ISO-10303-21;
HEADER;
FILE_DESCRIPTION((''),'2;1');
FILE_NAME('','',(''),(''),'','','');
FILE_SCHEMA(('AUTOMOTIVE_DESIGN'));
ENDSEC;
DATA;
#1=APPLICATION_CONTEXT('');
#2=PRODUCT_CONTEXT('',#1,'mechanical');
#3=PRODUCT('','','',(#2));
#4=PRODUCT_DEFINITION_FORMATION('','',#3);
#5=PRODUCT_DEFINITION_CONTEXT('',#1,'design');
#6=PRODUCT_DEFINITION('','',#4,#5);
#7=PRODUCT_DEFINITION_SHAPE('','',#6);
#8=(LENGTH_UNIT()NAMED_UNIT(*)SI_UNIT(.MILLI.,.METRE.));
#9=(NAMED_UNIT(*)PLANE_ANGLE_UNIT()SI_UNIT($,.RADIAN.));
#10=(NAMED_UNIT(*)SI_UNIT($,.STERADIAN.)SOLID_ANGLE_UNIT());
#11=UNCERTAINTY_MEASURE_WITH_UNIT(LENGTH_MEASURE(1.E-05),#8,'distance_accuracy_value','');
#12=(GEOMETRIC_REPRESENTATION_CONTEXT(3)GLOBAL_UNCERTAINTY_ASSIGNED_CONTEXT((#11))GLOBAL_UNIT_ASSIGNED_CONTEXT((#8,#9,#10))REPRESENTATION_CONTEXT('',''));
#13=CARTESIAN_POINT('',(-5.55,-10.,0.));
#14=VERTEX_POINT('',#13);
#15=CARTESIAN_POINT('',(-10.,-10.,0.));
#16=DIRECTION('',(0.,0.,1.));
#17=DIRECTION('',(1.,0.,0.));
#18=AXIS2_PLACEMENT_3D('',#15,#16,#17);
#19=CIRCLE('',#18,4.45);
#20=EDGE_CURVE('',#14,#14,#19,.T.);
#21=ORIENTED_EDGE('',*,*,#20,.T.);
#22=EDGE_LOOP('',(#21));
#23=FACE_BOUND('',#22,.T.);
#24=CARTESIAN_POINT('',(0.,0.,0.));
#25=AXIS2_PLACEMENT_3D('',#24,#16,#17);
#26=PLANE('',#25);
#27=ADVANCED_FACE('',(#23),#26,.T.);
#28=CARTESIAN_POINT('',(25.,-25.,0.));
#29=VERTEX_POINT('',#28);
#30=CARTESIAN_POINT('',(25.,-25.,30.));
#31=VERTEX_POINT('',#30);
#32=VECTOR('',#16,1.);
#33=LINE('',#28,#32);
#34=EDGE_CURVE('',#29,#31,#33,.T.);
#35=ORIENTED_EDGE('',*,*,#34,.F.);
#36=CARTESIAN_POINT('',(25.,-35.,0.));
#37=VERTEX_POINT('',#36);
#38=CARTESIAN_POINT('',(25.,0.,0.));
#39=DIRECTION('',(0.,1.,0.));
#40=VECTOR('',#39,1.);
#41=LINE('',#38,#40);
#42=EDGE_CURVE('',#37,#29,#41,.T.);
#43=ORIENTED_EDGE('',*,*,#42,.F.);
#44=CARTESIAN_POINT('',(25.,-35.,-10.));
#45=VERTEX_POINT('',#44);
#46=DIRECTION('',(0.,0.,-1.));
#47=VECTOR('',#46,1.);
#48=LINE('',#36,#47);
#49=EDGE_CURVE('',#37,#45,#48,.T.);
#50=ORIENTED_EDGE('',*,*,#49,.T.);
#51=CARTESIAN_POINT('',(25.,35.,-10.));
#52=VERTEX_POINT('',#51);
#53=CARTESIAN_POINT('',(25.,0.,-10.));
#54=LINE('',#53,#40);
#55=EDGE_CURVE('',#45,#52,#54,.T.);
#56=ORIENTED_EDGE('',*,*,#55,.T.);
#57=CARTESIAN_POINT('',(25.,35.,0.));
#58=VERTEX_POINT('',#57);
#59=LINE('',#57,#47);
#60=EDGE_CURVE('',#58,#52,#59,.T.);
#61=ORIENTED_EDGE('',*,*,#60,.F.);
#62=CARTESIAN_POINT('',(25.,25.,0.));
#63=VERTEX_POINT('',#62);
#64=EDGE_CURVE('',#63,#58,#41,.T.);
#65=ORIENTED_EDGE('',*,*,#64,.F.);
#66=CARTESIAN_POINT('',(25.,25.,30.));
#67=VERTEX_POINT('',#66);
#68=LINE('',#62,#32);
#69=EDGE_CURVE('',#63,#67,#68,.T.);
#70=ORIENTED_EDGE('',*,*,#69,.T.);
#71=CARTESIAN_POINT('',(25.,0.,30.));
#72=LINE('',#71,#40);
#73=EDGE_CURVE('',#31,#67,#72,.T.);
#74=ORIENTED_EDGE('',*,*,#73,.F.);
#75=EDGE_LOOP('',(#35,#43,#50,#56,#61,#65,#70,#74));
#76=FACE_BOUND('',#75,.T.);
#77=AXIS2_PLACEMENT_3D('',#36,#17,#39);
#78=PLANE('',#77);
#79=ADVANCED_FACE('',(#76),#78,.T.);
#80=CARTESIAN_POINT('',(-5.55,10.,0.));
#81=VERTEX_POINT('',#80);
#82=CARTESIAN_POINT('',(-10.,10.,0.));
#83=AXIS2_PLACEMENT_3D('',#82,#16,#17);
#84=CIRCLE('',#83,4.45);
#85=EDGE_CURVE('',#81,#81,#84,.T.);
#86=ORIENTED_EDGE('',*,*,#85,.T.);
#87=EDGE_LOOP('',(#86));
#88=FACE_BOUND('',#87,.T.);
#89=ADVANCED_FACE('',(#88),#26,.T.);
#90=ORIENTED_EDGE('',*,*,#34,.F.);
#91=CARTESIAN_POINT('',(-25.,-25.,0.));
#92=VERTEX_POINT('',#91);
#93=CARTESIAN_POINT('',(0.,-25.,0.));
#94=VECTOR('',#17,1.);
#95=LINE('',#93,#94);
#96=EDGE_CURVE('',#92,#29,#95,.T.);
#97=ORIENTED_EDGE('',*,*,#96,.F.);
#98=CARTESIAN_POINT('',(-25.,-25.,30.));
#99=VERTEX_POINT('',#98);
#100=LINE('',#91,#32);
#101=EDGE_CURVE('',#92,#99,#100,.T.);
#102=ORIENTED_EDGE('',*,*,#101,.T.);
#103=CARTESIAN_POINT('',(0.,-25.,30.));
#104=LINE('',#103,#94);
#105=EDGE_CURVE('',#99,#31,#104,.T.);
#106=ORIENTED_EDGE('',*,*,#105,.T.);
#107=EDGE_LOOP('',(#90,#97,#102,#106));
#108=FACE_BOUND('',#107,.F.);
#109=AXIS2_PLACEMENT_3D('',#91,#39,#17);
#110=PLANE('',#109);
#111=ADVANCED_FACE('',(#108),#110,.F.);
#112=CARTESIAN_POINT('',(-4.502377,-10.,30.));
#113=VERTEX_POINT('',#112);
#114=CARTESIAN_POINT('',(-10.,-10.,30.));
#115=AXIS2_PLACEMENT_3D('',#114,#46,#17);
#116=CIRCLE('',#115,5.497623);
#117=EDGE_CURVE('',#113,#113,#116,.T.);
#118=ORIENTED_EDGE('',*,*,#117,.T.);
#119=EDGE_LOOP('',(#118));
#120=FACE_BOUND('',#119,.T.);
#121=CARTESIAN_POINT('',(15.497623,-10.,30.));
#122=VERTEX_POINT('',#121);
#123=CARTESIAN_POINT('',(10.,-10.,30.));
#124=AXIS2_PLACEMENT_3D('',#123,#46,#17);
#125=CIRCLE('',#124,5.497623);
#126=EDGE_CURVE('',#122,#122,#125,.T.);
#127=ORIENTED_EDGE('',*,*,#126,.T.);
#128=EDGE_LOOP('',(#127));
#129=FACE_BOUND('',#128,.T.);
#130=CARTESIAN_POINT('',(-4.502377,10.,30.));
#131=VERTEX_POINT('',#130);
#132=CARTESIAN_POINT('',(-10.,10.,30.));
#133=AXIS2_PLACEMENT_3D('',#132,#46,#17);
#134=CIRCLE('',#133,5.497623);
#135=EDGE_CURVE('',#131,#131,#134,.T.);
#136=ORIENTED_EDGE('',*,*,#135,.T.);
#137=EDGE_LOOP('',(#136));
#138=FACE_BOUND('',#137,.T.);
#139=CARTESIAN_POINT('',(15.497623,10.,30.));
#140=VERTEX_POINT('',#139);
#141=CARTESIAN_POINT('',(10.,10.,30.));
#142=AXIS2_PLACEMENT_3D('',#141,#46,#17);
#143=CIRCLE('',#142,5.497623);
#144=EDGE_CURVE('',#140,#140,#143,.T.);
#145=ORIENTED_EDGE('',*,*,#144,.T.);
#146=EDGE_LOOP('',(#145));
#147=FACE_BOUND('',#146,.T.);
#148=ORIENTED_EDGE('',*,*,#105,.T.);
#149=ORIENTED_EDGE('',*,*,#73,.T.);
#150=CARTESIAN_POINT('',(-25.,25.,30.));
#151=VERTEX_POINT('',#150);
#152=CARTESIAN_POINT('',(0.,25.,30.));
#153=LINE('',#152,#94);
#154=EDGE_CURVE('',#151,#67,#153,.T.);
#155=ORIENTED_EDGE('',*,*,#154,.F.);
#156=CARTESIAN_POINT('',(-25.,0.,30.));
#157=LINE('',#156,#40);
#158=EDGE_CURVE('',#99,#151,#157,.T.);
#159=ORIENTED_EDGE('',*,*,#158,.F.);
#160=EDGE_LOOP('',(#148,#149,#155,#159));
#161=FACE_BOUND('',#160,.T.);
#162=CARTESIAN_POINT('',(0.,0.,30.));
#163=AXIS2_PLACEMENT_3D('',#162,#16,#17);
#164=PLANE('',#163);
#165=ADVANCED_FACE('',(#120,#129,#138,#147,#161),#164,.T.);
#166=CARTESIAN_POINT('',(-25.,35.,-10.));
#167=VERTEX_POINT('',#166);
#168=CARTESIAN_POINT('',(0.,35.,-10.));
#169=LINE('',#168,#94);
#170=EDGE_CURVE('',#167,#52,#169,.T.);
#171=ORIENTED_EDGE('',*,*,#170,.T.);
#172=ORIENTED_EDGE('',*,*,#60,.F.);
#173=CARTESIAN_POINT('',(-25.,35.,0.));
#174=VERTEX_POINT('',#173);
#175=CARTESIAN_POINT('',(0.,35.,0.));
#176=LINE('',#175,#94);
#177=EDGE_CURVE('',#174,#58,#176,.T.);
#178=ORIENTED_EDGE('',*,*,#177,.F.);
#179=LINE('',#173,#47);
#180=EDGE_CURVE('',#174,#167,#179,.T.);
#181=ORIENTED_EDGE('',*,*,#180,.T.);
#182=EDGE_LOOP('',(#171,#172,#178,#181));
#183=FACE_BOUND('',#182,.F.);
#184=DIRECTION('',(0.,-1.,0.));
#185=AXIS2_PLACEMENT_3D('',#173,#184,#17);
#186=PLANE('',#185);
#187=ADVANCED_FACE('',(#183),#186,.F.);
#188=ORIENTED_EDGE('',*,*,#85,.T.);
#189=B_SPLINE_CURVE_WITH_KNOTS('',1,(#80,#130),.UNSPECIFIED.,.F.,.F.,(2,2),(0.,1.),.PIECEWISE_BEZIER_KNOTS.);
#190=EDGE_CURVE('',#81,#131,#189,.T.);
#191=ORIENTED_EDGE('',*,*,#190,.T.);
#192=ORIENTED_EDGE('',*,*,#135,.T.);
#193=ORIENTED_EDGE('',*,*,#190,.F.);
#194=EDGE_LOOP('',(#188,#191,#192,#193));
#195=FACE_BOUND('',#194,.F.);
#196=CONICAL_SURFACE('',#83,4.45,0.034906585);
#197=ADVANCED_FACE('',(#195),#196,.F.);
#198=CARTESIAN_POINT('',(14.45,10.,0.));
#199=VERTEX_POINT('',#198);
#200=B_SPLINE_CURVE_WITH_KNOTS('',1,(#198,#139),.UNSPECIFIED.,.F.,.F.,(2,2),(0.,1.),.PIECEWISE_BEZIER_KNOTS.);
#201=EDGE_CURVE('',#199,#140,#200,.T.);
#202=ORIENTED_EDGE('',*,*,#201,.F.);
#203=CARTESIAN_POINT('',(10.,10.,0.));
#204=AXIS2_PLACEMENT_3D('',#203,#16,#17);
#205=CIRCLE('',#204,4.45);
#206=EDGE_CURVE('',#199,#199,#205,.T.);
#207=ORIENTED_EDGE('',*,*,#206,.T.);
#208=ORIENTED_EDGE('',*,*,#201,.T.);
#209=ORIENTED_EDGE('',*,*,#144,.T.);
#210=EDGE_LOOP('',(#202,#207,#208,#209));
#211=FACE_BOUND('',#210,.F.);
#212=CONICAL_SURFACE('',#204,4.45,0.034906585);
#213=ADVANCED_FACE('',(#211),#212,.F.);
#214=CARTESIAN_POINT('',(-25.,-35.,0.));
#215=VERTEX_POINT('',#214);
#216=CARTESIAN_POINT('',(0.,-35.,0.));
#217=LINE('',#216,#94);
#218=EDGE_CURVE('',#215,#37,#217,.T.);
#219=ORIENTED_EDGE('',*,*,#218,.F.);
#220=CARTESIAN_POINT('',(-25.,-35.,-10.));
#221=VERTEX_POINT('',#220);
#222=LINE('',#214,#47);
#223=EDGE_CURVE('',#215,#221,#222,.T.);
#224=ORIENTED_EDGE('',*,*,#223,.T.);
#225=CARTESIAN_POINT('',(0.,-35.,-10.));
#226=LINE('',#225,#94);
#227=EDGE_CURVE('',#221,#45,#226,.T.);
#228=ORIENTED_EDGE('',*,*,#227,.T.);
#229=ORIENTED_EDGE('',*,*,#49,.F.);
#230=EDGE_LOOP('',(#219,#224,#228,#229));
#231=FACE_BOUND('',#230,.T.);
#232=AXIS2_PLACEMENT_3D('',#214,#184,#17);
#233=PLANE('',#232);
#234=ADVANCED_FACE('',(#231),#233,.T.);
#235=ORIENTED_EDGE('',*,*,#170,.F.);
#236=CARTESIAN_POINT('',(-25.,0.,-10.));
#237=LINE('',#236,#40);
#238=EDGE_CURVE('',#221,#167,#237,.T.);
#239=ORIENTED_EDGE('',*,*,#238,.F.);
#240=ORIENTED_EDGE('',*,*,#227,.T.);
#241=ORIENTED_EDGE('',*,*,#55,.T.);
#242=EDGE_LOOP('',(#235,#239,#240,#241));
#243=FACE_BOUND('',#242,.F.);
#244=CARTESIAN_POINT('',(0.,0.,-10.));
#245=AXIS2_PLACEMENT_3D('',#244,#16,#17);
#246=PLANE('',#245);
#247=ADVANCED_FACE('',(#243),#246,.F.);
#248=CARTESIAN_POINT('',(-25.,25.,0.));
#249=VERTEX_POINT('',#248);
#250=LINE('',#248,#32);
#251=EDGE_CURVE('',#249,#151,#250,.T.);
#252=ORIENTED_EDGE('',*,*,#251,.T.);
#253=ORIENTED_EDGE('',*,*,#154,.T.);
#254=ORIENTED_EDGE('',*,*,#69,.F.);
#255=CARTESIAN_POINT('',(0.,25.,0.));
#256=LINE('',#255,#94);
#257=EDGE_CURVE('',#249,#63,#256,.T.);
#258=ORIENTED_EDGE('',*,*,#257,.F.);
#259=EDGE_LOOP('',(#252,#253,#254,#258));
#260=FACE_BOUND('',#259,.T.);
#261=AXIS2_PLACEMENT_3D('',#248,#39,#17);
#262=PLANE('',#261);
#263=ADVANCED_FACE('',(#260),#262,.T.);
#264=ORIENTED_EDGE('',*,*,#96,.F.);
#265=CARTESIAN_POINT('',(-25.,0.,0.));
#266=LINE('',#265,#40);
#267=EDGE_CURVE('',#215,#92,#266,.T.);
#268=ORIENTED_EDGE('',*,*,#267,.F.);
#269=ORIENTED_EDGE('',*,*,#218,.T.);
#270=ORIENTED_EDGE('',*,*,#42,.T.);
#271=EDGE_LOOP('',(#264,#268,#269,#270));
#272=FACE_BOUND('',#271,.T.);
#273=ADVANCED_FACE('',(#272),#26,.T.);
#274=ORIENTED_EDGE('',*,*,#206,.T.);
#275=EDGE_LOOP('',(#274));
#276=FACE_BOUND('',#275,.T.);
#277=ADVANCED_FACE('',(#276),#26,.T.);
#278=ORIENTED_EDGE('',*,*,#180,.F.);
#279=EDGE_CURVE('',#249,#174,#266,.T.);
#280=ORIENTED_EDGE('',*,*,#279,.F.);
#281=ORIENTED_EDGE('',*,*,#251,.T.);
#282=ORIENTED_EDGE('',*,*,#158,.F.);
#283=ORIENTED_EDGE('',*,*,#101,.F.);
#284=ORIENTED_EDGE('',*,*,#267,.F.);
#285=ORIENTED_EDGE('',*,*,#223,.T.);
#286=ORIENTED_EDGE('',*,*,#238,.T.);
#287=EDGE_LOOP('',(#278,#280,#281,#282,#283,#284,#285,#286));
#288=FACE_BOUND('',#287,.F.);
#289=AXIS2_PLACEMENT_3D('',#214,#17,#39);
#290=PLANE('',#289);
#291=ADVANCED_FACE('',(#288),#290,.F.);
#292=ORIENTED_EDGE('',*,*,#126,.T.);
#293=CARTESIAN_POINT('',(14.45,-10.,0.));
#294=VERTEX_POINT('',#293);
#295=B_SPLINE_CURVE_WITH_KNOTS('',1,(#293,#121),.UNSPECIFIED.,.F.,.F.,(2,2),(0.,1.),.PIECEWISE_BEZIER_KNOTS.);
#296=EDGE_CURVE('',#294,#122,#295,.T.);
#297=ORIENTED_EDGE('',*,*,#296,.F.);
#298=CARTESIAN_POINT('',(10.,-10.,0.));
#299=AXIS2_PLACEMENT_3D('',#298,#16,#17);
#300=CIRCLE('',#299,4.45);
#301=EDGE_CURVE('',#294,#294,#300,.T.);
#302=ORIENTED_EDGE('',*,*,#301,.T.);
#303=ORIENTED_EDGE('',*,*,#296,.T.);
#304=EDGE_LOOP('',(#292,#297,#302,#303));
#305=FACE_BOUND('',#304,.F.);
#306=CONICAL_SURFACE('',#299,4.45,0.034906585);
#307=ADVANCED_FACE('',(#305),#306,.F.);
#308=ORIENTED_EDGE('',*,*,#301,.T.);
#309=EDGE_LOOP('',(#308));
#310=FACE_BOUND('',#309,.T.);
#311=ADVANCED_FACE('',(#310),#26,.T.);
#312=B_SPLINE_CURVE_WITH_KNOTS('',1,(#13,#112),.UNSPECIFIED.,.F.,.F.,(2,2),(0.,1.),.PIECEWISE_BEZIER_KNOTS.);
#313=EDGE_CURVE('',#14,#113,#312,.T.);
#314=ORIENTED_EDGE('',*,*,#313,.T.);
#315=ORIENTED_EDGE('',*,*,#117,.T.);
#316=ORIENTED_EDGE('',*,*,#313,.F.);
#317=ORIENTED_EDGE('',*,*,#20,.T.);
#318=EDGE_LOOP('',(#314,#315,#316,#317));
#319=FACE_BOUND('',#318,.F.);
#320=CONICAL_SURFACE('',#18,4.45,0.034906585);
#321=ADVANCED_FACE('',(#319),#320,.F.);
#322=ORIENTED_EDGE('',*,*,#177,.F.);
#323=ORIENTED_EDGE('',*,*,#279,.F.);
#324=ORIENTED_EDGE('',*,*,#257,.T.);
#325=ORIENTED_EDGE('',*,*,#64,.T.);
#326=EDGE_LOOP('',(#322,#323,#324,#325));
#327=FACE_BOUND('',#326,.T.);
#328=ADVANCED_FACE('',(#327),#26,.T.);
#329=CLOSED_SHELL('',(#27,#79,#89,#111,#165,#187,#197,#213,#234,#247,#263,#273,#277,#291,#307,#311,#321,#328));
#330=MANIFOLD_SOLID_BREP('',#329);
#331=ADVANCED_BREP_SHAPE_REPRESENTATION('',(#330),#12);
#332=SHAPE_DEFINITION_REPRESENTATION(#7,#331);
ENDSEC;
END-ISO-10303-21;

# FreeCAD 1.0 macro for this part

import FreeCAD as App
import Part
import Sketcher
Q = App.Units.Quantity


def add_polygon(sketch, points):
    """Adds a closed chain of lines whose ends are joined by coincident constraints."""
    first, n = sketch.GeometryCount, len(points)
    for a, b in zip(points, points[1:] + points[:1]):
        sketch.addGeometry(Part.LineSegment(App.Vector(*a, 0), App.Vector(*b, 0)), False)
    for i in range(n):
        sketch.addConstraint(Sketcher.Constraint("Coincident", first + i, 2, first + (i + 1) % n, 1))

doc = App.newDocument("Part")
body = doc.addObject("PartDesign::Body", "Body")

# Sketch on XY plane
sketch1 = doc.addObject("Sketcher::SketchObject", "Sketch")
body.addObject(sketch1)
sketch1.AttachmentSupport = (doc.XY_Plane, [""])
sketch1.MapMode = "FlatFace"
add_polygon(sketch1, [(-25, 25), (-25, -25), (25, -25), (25, 25)])  # lines 0-3
sketch1.addConstraint([
    Sketcher.Constraint("Vertical", 0),
    Sketcher.Constraint("Horizontal", 1),
    Sketcher.Constraint("Vertical", 2),
    Sketcher.Constraint("Horizontal", 3),
    Sketcher.Constraint("Symmetric", 0, 2, 2, 2, -1, 1),
    Sketcher.Constraint("Equal", 3, 0),
    Sketcher.Constraint("DistanceX", 1, 1, 1, 2, Q("50 mm")),
])
pad1 = doc.addObject("PartDesign::Pad", "Pad")
body.addObject(pad1)
pad1.Profile = sketch1
pad1.Length = 30

# Sketch on XY plane
sketch2 = doc.addObject("Sketcher::SketchObject", "Sketch001")
body.addObject(sketch2)
sketch2.AttachmentSupport = (doc.XY_Plane, [""])
sketch2.MapMode = "FlatFace"
sketch2.addGeometry([
    Part.Circle(App.Vector(10, 10, 0), App.Vector(0, 0, 1), 4.5),
    Part.Circle(App.Vector(-10, 10, 0), App.Vector(0, 0, 1), 4.5),
    Part.Circle(App.Vector(10, -10, 0), App.Vector(0, 0, 1), 4.5),
    Part.Circle(App.Vector(-10, -10, 0), App.Vector(0, 0, 1), 4.5),
], False)
sketch2.addConstraint([
    Sketcher.Constraint("Equal", 0, 1),
    Sketcher.Constraint("Equal", 1, 2),
    Sketcher.Constraint("Equal", 2, 3),
    Sketcher.Constraint("Symmetric", 1, 3, 2, 3, -1, 1),
    Sketcher.Constraint("Symmetric", 0, 3, 3, 3, -1, 1),
    Sketcher.Constraint("Symmetric", 0, 3, 1, 3, -2),
    Sketcher.Constraint("Diameter", 0, Q("8.9 mm")),
    Sketcher.Constraint("DistanceX", -1, 1, 0, 3, Q("10 mm")),
    Sketcher.Constraint("DistanceY", -1, 1, 0, 3, Q("10 mm")),
])
pocket1 = doc.addObject("PartDesign::Pocket", "Pocket")
body.addObject(pocket1)
pocket1.Profile = sketch2
pocket1.Length = 30
pocket1.Reversed = True
pocket1.TaperAngle = 2

# Sketch on XY plane
sketch3 = doc.addObject("Sketcher::SketchObject", "Sketch002")
body.addObject(sketch3)
sketch3.AttachmentSupport = (doc.XY_Plane, [""])
sketch3.MapMode = "FlatFace"
add_polygon(sketch3, [(-25, 35), (-25, -35), (25, -35), (25, 35)])  # lines 0-3
sketch3.addConstraint([
    Sketcher.Constraint("Vertical", 0),
    Sketcher.Constraint("Horizontal", 1),
    Sketcher.Constraint("Vertical", 2),
    Sketcher.Constraint("Horizontal", 3),
    Sketcher.Constraint("Symmetric", 0, 2, 2, 2, -1, 1),
    Sketcher.Constraint("DistanceX", 1, 1, 1, 2, Q("50 mm")),
    Sketcher.Constraint("DistanceY", 0, 2, 0, 1, Q("70 mm")),
])
pad2 = doc.addObject("PartDesign::Pad", "Pad001")
body.addObject(pad2)
pad2.Profile = sketch3
pad2.Length = 10
pad2.Reversed = True

doc.recompute()
